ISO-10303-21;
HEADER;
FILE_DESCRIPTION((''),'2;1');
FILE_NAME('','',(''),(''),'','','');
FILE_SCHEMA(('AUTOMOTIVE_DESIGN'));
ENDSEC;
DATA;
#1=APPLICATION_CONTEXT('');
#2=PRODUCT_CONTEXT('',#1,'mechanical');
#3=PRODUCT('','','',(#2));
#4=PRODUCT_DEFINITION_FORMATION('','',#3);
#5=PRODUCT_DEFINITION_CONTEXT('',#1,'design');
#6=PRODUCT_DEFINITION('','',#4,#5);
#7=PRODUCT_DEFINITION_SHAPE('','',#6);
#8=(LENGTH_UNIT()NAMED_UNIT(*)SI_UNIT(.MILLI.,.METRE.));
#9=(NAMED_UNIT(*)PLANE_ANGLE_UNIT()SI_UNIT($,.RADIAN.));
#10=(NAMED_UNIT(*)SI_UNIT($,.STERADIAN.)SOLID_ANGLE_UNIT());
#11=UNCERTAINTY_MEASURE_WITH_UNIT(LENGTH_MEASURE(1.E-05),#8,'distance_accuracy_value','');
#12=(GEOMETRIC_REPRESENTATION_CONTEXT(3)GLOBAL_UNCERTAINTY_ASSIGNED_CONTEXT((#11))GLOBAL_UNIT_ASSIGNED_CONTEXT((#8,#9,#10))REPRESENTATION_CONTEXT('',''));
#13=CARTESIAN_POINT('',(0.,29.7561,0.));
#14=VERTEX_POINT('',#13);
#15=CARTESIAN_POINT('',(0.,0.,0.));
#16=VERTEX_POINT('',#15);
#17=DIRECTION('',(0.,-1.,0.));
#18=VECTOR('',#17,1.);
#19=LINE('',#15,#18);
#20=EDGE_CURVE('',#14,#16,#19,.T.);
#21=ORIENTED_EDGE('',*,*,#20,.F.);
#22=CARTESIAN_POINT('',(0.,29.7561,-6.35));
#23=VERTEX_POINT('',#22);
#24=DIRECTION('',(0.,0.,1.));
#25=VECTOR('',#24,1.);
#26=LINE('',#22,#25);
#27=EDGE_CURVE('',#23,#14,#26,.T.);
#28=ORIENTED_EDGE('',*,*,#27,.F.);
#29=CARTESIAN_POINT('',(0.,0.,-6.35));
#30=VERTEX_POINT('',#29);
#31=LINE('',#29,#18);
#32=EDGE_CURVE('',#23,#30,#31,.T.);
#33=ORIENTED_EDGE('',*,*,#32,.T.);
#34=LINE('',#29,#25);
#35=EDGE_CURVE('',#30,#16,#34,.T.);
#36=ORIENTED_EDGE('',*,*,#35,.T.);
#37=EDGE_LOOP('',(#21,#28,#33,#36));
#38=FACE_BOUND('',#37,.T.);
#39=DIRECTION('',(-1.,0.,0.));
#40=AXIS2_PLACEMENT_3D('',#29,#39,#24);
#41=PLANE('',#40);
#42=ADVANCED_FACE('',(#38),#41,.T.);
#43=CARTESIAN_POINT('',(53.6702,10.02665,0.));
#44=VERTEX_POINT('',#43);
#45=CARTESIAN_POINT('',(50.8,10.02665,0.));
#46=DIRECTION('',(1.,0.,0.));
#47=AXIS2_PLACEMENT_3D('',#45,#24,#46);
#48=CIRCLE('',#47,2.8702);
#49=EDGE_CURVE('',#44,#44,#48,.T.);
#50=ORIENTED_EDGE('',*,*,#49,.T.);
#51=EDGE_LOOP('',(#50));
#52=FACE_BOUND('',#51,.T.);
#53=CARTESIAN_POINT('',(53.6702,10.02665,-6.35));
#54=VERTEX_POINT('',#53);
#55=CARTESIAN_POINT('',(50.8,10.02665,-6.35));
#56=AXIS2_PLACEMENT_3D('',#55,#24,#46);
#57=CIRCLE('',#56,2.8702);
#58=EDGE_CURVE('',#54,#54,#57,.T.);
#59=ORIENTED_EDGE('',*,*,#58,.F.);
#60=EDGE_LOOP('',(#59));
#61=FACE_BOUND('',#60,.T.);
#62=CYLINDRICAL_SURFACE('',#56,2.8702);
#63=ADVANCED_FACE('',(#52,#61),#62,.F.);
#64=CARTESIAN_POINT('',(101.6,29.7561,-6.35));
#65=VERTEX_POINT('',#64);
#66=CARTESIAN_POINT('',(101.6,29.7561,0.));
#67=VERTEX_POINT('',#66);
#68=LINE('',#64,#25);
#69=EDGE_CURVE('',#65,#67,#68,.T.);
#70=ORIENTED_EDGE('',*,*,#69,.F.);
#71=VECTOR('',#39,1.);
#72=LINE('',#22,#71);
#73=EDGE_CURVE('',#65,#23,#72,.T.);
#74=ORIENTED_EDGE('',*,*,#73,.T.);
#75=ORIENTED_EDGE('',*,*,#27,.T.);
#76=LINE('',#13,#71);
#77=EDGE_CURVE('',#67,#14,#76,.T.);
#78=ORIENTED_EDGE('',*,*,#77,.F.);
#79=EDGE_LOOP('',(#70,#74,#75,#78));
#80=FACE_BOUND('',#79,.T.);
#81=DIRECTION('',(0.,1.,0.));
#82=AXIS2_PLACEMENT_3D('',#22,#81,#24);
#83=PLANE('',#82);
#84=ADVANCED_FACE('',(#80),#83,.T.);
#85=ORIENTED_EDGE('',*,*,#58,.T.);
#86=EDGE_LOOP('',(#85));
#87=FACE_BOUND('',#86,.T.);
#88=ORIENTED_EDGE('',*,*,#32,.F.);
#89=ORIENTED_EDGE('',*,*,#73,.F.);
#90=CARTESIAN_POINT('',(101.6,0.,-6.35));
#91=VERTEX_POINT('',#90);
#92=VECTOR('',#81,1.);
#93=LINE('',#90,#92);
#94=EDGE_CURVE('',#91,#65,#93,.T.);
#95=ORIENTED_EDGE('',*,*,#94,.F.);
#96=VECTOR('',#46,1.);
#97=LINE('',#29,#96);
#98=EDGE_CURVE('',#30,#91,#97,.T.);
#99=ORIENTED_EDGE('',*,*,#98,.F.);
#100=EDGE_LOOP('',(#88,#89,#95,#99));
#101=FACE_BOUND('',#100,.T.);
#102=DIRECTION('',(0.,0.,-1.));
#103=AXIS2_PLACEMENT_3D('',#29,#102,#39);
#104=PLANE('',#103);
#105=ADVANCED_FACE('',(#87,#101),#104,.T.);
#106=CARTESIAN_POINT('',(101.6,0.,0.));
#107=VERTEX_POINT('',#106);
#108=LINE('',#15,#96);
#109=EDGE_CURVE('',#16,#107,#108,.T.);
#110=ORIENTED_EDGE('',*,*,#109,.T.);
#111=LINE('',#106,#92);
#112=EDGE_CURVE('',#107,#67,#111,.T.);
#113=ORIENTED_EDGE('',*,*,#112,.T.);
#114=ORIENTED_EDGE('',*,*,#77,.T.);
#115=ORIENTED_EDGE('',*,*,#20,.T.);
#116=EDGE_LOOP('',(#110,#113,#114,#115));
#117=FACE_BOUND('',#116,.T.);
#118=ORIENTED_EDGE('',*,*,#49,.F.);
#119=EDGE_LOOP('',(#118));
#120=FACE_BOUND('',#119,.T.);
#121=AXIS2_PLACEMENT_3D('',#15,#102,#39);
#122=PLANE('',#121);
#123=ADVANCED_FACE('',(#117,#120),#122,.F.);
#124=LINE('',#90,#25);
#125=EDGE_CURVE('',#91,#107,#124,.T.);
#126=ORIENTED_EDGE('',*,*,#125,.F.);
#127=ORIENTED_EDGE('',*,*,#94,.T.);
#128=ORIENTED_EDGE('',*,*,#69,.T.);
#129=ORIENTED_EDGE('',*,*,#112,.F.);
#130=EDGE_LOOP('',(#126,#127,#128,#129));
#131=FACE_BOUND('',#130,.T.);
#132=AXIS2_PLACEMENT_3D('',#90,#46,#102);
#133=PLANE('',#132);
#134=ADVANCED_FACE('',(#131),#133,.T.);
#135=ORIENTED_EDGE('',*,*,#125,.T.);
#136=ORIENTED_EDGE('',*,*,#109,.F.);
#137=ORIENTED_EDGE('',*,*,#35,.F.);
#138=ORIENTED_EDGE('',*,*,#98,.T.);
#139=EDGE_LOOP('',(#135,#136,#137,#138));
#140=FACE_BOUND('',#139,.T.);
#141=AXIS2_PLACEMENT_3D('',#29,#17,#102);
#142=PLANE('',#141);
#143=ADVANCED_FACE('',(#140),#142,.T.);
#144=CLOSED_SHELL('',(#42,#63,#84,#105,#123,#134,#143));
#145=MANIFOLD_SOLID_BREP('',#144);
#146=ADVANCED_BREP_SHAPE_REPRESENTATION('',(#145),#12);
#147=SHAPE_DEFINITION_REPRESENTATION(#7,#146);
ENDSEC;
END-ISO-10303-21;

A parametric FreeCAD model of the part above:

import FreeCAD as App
import Part
import Sketcher

V = App.Vector
Q = App.Units.Quantity

doc = App.newDocument("Part")
body = doc.addObject("PartDesign::Body", "Body")

# Sketch on XY plane
sketch1 = body.newObject("Sketcher::SketchObject", "Sketch")
sketch1.AttachmentSupport = (doc.getObject("XY_Plane"), [""])
sketch1.MapMode = "FlatFace"
sketch1.addGeometry([
    Part.LineSegment(V(0, 29.7561, 0), V(0, 0, 0)),
    Part.LineSegment(V(0, 0, 0), V(101.6, 0, 0)),
    Part.LineSegment(V(101.6, 0, 0), V(101.6, 29.7561, 0)),
    Part.LineSegment(V(101.6, 29.7561, 0), V(0, 29.7561, 0)),
], False)
sketch1.addConstraint([
    Sketcher.Constraint("Coincident", 0, 2, 1, 1),
    Sketcher.Constraint("Coincident", 1, 2, 2, 1),
    Sketcher.Constraint("Coincident", 2, 2, 3, 1),
    Sketcher.Constraint("Coincident", 3, 2, 0, 1),
    Sketcher.Constraint("Vertical", 0),
    Sketcher.Constraint("Horizontal", 1),
    Sketcher.Constraint("Vertical", 2),
    Sketcher.Constraint("Horizontal", 3),
    Sketcher.Constraint("Coincident", 0, 2, -1, 1),
    Sketcher.Constraint("DistanceX", 1, 1, 1, 2, Q("4 in")),
    Sketcher.Constraint("DistanceY", 0, 2, 0, 1, Q("1.1715 in")),
])
pad1 = body.newObject("PartDesign::Pad", "Pad")
pad1.Profile = sketch1
pad1.Length = Q("0.25 in")
pad1.Reversed = True

# Sketch on XY plane
sketch2 = body.newObject("Sketcher::SketchObject", "Sketch001")
sketch2.AttachmentSupport = (doc.getObject("XY_Plane"), [""])
sketch2.MapMode = "FlatFace"
sketch2.addGeometry(Part.Circle(V(50.8, 10.02665, 0), V(0, 0, 1), 2.8702), False)
sketch2.addConstraint([
    Sketcher.Constraint("Diameter", 0, Q("0.226 in")),
    Sketcher.Constraint("DistanceX", -1, 1, 0, 3, Q("2 in")),
    Sketcher.Constraint("DistanceY", -1, 1, 0, 3, Q("10.02665 mm")),
])
pocket1 = body.newObject("PartDesign::Pocket", "Pocket")
pocket1.Profile = sketch2
pocket1.Type = "ThroughAll"

doc.recompute()
